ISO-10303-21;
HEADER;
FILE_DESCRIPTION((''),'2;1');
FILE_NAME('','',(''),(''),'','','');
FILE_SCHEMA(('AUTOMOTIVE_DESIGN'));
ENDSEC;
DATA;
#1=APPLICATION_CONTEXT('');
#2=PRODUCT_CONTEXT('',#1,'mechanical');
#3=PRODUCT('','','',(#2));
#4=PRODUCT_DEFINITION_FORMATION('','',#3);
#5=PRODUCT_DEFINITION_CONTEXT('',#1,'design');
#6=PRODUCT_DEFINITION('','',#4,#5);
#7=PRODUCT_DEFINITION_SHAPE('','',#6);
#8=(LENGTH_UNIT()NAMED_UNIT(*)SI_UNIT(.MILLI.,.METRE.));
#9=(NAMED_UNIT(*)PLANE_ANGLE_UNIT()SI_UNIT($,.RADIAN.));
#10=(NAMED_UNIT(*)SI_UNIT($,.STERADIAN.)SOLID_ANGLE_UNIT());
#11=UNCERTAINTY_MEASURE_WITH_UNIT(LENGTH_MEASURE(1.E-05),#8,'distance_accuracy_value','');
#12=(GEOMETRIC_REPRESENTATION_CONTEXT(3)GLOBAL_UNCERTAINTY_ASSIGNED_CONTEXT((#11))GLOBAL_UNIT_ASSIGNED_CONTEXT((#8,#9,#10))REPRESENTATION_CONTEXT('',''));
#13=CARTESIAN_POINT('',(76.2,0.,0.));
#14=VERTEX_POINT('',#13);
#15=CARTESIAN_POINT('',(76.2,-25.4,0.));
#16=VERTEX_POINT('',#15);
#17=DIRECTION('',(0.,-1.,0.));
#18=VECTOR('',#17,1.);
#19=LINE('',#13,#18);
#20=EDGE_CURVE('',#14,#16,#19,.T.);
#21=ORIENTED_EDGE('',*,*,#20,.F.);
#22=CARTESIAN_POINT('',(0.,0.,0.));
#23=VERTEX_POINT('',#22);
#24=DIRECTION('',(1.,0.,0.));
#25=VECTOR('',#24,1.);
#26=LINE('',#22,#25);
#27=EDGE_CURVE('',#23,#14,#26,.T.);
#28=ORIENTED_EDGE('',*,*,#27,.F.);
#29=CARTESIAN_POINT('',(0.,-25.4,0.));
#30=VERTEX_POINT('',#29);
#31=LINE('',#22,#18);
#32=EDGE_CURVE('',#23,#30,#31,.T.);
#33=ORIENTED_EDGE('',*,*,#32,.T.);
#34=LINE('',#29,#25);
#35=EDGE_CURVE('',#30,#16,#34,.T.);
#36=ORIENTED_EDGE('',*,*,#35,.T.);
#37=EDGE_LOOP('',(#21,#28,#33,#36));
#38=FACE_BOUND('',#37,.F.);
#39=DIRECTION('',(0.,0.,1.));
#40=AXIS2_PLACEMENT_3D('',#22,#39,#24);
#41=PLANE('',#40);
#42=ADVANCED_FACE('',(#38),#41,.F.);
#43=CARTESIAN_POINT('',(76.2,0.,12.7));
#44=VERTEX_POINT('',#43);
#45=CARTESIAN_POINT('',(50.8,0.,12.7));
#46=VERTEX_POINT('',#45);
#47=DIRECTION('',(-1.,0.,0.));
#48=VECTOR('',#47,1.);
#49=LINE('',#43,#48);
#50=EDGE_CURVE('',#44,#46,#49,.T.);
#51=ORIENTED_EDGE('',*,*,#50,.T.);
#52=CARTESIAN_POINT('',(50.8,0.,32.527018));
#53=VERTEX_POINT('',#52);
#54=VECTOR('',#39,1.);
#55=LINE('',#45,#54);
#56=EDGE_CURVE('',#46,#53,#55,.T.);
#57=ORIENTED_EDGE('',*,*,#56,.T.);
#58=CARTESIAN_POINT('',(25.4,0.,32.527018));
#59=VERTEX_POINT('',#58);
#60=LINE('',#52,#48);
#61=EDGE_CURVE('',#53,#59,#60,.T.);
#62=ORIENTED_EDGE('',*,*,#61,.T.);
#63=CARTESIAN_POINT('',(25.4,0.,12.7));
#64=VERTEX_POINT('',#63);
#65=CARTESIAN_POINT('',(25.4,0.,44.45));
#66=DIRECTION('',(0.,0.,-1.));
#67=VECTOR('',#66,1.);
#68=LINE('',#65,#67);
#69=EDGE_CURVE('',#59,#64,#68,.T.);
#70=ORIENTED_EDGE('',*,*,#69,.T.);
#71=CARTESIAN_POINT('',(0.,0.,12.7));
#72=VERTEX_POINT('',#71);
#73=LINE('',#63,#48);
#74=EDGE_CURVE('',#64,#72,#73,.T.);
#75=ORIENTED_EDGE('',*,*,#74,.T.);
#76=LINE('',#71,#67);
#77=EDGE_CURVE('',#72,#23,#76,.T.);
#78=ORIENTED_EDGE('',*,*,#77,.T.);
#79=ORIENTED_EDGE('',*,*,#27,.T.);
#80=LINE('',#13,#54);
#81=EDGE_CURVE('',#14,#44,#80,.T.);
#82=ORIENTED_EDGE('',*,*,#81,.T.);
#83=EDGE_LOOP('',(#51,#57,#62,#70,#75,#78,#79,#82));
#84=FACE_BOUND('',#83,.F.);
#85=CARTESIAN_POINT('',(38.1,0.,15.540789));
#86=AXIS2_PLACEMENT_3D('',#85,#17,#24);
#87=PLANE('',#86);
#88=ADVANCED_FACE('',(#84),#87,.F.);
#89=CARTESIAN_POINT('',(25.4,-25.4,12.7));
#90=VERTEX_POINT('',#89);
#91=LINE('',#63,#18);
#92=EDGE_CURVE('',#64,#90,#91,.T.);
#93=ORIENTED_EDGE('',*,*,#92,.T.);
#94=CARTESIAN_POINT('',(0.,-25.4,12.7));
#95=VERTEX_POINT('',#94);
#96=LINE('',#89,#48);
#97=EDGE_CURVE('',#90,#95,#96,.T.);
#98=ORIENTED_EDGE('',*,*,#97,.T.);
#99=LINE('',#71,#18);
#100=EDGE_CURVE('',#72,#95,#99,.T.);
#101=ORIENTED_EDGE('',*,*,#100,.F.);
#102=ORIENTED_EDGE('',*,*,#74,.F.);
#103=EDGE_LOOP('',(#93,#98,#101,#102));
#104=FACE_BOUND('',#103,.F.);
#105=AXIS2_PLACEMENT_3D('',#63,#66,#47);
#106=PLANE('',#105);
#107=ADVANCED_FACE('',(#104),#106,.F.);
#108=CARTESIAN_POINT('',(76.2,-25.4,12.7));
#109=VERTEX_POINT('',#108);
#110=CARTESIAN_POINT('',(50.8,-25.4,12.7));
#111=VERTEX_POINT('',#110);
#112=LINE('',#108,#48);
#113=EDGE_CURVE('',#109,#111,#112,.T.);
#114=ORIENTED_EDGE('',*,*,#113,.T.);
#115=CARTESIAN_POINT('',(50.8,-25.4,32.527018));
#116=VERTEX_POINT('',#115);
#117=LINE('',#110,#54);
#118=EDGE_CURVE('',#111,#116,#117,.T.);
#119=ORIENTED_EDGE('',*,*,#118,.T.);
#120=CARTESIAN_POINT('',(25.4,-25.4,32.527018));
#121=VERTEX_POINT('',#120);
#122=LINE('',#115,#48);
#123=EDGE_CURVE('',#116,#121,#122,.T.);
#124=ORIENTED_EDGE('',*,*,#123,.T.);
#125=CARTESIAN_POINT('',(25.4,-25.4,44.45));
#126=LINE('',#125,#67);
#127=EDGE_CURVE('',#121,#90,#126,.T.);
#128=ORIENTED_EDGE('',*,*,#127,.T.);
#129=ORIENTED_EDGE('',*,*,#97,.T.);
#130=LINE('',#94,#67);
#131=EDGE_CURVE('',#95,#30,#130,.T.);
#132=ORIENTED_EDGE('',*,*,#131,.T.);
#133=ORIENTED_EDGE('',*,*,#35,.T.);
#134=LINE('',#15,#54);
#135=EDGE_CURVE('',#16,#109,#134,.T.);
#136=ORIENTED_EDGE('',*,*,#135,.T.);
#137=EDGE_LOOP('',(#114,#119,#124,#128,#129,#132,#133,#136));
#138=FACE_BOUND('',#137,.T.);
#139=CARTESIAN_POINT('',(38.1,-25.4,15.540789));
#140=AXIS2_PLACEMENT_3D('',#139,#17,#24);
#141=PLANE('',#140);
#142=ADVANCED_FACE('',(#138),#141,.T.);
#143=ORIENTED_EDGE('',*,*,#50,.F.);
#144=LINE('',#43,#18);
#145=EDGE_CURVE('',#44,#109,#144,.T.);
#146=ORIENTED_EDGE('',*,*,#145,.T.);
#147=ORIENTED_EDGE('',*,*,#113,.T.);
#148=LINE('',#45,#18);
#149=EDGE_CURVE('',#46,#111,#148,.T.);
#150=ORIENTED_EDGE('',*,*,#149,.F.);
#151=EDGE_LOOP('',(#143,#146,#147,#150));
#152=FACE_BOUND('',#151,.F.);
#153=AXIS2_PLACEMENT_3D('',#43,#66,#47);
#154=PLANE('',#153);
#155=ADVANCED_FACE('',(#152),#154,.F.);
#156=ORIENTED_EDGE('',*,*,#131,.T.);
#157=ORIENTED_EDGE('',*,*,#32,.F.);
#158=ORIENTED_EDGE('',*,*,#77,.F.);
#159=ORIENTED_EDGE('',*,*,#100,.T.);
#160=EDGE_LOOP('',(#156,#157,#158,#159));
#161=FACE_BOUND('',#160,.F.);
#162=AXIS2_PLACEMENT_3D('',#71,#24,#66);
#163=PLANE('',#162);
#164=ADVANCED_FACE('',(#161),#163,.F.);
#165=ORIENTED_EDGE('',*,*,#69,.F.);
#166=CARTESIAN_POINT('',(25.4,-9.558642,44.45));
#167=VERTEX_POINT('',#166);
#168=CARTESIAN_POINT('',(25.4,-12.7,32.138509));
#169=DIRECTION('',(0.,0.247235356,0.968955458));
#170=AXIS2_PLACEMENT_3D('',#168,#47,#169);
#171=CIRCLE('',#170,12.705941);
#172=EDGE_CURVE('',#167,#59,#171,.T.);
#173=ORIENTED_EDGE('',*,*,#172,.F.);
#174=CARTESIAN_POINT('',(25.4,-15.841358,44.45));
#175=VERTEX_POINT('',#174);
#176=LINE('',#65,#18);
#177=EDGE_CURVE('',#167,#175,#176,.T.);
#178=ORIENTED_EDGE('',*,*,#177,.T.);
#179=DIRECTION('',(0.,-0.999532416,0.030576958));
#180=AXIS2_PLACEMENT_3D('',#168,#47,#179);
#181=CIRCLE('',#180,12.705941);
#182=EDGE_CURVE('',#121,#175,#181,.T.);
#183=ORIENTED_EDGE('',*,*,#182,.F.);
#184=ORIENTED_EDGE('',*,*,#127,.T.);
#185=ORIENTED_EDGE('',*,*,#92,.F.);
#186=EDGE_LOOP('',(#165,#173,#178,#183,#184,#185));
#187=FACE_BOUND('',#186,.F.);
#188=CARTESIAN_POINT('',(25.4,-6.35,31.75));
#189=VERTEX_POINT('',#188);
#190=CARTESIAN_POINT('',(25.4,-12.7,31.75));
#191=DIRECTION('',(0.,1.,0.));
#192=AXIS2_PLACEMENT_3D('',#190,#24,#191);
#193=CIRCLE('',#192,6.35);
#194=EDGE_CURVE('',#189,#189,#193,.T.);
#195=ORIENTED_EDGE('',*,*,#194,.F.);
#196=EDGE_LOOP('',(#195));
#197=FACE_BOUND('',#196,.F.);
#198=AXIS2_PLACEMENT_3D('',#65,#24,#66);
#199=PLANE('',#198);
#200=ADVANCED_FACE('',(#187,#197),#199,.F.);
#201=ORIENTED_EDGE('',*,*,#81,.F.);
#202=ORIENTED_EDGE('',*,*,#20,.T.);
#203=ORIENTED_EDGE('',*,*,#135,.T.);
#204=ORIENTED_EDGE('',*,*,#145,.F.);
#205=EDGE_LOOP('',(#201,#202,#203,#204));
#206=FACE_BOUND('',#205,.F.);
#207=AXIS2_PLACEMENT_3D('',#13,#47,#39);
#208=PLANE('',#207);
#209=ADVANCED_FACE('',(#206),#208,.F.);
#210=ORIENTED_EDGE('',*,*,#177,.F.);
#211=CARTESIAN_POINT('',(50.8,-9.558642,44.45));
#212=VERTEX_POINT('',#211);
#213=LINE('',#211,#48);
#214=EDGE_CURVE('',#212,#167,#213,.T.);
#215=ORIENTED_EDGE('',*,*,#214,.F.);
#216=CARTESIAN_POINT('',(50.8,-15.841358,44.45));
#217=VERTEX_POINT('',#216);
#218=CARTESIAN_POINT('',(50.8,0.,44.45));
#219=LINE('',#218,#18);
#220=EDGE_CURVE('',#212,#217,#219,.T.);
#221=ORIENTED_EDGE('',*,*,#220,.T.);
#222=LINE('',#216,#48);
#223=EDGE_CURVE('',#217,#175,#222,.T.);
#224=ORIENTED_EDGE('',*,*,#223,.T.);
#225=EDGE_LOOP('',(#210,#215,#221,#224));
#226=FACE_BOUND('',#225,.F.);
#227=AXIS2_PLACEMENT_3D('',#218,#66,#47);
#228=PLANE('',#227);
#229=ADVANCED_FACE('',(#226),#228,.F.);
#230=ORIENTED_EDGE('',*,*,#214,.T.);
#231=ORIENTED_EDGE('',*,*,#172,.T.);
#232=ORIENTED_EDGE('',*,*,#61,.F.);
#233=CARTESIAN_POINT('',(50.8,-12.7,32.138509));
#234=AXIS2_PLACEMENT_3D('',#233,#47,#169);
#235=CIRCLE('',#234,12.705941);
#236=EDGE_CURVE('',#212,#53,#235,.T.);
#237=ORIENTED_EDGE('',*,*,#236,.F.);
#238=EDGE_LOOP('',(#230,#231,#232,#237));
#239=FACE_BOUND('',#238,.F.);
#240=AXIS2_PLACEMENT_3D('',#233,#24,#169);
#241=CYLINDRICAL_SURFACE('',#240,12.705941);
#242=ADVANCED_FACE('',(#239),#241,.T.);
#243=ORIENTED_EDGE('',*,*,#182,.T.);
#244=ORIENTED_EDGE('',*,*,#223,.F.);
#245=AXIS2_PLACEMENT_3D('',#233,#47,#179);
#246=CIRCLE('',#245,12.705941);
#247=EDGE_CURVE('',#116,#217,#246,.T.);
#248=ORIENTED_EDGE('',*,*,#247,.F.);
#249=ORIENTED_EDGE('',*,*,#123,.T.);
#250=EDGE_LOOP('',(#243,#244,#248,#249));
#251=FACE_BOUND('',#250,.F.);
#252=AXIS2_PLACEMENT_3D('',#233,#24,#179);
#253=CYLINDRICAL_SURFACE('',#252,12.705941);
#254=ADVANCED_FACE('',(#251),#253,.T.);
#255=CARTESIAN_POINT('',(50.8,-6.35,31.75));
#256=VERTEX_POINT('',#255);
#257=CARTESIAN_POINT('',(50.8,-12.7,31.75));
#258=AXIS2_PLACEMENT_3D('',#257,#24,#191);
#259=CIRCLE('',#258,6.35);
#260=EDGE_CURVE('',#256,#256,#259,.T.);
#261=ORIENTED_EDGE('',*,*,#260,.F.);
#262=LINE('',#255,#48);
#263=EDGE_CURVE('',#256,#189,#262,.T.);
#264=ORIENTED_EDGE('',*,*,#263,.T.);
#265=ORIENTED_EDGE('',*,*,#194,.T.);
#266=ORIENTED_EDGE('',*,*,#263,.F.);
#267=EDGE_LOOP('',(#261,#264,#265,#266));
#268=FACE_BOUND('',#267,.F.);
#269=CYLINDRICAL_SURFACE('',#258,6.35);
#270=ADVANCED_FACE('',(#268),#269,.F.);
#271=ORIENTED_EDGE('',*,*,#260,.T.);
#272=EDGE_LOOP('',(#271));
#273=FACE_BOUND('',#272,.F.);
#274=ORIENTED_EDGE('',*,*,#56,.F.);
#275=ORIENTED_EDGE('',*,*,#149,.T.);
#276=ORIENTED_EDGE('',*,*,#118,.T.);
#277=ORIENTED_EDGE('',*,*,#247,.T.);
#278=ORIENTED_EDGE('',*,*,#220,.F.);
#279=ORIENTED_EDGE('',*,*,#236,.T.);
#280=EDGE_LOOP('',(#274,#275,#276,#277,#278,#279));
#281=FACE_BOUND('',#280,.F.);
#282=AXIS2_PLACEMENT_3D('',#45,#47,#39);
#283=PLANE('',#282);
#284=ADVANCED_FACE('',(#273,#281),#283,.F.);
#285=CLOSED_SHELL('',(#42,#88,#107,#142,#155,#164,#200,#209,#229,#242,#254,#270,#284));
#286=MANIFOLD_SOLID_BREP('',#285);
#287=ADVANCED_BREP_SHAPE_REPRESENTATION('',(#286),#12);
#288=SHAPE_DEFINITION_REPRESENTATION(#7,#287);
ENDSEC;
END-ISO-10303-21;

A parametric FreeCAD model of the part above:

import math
import FreeCAD as App
import Part
import Sketcher
from FreeCAD import Vector
Q = App.Units.Quantity

doc = App.newDocument("Part")
body = doc.addObject("PartDesign::Body", "Body")

# Sketch on XZ plane
sketch1 = body.newObject("Sketcher::SketchObject", "Sketch")
sketch1.AttachmentSupport = (doc.getObject("XZ_Plane"), [""])
sketch1.MapMode = "FlatFace"
sketch1.addGeometry([
    Part.LineSegment(Vector(0, 13, 0), Vector(0, 0, 0)),  # 0
    Part.LineSegment(Vector(0, 0, 0), Vector(76, 0, 0)),  # 1
    Part.LineSegment(Vector(76, 0, 0), Vector(76, 13, 0)),  # 2
    Part.LineSegment(Vector(76, 13, 0), Vector(51, 13, 0)),  # 3
    Part.LineSegment(Vector(51, 13, 0), Vector(51, 44, 0)),  # 4
    Part.LineSegment(Vector(51, 44, 0), Vector(25, 44, 0)),  # 5
    Part.LineSegment(Vector(25, 44, 0), Vector(25, 13, 0)),  # 6
    Part.LineSegment(Vector(25, 13, 0), Vector(0, 13, 0)),  # 7
], False)
sketch1.addConstraint([
    Sketcher.Constraint("Coincident", 0, 2, 1, 1),
    Sketcher.Constraint("Coincident", 1, 2, 2, 1),
    Sketcher.Constraint("Coincident", 2, 2, 3, 1),
    Sketcher.Constraint("Coincident", 3, 2, 4, 1),
    Sketcher.Constraint("Coincident", 4, 2, 5, 1),
    Sketcher.Constraint("Coincident", 5, 2, 6, 1),
    Sketcher.Constraint("Coincident", 6, 2, 7, 1),
    Sketcher.Constraint("Coincident", 7, 2, 0, 1),
    Sketcher.Constraint("Vertical", 0),
    Sketcher.Constraint("Horizontal", 1),
    Sketcher.Constraint("Vertical", 2),
    Sketcher.Constraint("Horizontal", 3),
    Sketcher.Constraint("Vertical", 4),
    Sketcher.Constraint("Horizontal", 5),
    Sketcher.Constraint("Vertical", 6),
    Sketcher.Constraint("Horizontal", 7),
    Sketcher.Constraint("Coincident", 0, 2, -1, 1),
    Sketcher.Constraint("Horizontal", 3, 2, 6, 2),
    Sketcher.Constraint("Equal", 3, 5),
    Sketcher.Constraint("Equal", 5, 7),
    Sketcher.Constraint("DistanceX", 1, 1, 1, 2, Q("3 in")),
    Sketcher.Constraint("DistanceY", 0, 2, 0, 1, Q("0.5 in")),
    Sketcher.Constraint("DistanceY", 4, 1, 4, 2, Q("1.25 in")),
])
pad1 = body.newObject("PartDesign::Pad", "Pad")
pad1.Profile = sketch1
pad1.Length = Q("1 in")

# Sketch on YZ plane
sketch2 = body.newObject("Sketcher::SketchObject", "Sketch001")
sketch2.AttachmentSupport = (doc.getObject("YZ_Plane"), [""])
sketch2.MapMode = "FlatFace"
sketch2.AttachmentOffset = App.Placement(Vector(0, 0, 2 * 25.4), App.Rotation())
sketch2.addGeometry([
    Part.ArcOfCircle(Part.Circle(Vector(-13, 32, 0), Vector(0, 0, 1), 13), math.radians(2), math.radians(76)),  # 0
    Part.LineSegment(Vector(0, 33, 0), Vector(0, 44, 0)),  # 1
    Part.LineSegment(Vector(0, 44, 0), Vector(-10, 44, 0)),  # 2
    Part.ArcOfCircle(Part.Circle(Vector(-13, 32, 0), Vector(0, 0, 1), 13), math.radians(104), math.radians(178)),  # 3
    Part.LineSegment(Vector(-16, 44, 0), Vector(-25, 44, 0)),  # 4
    Part.LineSegment(Vector(-25, 44, 0), Vector(-25, 33, 0)),  # 5
    Part.Circle(Vector(-13, 32, 0), Vector(0, 0, 1), 6),  # 6
], False)
sketch2.addConstraint([
    Sketcher.Constraint("Coincident", 0, 1, 1, 1),
    Sketcher.Constraint("Coincident", 1, 2, 2, 1),
    Sketcher.Constraint("Coincident", 2, 2, 0, 2),
    Sketcher.Constraint("Coincident", 3, 1, 4, 1),
    Sketcher.Constraint("Coincident", 4, 2, 5, 1),
    Sketcher.Constraint("Coincident", 5, 2, 3, 2),
    Sketcher.Constraint("Vertical", 1),
    Sketcher.Constraint("Horizontal", 2),
    Sketcher.Constraint("Horizontal", 4),
    Sketcher.Constraint("Vertical", 5),
    Sketcher.Constraint("Coincident", 3, 3, 0, 3),
    Sketcher.Constraint("Equal", 0, 3),
    Sketcher.Constraint("PointOnObject", 0, 1, -2),
    Sketcher.Constraint("Horizontal", 2, 2, 3, 1),
    Sketcher.Constraint("Horizontal", 0, 1, 5, 2),
    Sketcher.Constraint("Vertical", 3, 3, 6, 3),
    Sketcher.Constraint("Diameter", 6, Q("0.5 in")),
    Sketcher.Constraint("DistanceX", 4, 2, -1, 1, Q("1 in")),
    Sketcher.Constraint("DistanceY", 6, 3, 1, 2, Q("0.5 in")),
    Sketcher.Constraint("DistanceY", -1, 1, 6, 3, Q("1.25 in")),
    Sketcher.Constraint("Radius", 0, 12.705941),
    Sketcher.Constraint("DistanceY", 1, 1, 1, 2, 11.922982),
])
pocket1 = body.newObject("PartDesign::Pocket", "Pocket")
pocket1.Profile = sketch2
pocket1.Length = Q("1 in")

doc.recompute()
